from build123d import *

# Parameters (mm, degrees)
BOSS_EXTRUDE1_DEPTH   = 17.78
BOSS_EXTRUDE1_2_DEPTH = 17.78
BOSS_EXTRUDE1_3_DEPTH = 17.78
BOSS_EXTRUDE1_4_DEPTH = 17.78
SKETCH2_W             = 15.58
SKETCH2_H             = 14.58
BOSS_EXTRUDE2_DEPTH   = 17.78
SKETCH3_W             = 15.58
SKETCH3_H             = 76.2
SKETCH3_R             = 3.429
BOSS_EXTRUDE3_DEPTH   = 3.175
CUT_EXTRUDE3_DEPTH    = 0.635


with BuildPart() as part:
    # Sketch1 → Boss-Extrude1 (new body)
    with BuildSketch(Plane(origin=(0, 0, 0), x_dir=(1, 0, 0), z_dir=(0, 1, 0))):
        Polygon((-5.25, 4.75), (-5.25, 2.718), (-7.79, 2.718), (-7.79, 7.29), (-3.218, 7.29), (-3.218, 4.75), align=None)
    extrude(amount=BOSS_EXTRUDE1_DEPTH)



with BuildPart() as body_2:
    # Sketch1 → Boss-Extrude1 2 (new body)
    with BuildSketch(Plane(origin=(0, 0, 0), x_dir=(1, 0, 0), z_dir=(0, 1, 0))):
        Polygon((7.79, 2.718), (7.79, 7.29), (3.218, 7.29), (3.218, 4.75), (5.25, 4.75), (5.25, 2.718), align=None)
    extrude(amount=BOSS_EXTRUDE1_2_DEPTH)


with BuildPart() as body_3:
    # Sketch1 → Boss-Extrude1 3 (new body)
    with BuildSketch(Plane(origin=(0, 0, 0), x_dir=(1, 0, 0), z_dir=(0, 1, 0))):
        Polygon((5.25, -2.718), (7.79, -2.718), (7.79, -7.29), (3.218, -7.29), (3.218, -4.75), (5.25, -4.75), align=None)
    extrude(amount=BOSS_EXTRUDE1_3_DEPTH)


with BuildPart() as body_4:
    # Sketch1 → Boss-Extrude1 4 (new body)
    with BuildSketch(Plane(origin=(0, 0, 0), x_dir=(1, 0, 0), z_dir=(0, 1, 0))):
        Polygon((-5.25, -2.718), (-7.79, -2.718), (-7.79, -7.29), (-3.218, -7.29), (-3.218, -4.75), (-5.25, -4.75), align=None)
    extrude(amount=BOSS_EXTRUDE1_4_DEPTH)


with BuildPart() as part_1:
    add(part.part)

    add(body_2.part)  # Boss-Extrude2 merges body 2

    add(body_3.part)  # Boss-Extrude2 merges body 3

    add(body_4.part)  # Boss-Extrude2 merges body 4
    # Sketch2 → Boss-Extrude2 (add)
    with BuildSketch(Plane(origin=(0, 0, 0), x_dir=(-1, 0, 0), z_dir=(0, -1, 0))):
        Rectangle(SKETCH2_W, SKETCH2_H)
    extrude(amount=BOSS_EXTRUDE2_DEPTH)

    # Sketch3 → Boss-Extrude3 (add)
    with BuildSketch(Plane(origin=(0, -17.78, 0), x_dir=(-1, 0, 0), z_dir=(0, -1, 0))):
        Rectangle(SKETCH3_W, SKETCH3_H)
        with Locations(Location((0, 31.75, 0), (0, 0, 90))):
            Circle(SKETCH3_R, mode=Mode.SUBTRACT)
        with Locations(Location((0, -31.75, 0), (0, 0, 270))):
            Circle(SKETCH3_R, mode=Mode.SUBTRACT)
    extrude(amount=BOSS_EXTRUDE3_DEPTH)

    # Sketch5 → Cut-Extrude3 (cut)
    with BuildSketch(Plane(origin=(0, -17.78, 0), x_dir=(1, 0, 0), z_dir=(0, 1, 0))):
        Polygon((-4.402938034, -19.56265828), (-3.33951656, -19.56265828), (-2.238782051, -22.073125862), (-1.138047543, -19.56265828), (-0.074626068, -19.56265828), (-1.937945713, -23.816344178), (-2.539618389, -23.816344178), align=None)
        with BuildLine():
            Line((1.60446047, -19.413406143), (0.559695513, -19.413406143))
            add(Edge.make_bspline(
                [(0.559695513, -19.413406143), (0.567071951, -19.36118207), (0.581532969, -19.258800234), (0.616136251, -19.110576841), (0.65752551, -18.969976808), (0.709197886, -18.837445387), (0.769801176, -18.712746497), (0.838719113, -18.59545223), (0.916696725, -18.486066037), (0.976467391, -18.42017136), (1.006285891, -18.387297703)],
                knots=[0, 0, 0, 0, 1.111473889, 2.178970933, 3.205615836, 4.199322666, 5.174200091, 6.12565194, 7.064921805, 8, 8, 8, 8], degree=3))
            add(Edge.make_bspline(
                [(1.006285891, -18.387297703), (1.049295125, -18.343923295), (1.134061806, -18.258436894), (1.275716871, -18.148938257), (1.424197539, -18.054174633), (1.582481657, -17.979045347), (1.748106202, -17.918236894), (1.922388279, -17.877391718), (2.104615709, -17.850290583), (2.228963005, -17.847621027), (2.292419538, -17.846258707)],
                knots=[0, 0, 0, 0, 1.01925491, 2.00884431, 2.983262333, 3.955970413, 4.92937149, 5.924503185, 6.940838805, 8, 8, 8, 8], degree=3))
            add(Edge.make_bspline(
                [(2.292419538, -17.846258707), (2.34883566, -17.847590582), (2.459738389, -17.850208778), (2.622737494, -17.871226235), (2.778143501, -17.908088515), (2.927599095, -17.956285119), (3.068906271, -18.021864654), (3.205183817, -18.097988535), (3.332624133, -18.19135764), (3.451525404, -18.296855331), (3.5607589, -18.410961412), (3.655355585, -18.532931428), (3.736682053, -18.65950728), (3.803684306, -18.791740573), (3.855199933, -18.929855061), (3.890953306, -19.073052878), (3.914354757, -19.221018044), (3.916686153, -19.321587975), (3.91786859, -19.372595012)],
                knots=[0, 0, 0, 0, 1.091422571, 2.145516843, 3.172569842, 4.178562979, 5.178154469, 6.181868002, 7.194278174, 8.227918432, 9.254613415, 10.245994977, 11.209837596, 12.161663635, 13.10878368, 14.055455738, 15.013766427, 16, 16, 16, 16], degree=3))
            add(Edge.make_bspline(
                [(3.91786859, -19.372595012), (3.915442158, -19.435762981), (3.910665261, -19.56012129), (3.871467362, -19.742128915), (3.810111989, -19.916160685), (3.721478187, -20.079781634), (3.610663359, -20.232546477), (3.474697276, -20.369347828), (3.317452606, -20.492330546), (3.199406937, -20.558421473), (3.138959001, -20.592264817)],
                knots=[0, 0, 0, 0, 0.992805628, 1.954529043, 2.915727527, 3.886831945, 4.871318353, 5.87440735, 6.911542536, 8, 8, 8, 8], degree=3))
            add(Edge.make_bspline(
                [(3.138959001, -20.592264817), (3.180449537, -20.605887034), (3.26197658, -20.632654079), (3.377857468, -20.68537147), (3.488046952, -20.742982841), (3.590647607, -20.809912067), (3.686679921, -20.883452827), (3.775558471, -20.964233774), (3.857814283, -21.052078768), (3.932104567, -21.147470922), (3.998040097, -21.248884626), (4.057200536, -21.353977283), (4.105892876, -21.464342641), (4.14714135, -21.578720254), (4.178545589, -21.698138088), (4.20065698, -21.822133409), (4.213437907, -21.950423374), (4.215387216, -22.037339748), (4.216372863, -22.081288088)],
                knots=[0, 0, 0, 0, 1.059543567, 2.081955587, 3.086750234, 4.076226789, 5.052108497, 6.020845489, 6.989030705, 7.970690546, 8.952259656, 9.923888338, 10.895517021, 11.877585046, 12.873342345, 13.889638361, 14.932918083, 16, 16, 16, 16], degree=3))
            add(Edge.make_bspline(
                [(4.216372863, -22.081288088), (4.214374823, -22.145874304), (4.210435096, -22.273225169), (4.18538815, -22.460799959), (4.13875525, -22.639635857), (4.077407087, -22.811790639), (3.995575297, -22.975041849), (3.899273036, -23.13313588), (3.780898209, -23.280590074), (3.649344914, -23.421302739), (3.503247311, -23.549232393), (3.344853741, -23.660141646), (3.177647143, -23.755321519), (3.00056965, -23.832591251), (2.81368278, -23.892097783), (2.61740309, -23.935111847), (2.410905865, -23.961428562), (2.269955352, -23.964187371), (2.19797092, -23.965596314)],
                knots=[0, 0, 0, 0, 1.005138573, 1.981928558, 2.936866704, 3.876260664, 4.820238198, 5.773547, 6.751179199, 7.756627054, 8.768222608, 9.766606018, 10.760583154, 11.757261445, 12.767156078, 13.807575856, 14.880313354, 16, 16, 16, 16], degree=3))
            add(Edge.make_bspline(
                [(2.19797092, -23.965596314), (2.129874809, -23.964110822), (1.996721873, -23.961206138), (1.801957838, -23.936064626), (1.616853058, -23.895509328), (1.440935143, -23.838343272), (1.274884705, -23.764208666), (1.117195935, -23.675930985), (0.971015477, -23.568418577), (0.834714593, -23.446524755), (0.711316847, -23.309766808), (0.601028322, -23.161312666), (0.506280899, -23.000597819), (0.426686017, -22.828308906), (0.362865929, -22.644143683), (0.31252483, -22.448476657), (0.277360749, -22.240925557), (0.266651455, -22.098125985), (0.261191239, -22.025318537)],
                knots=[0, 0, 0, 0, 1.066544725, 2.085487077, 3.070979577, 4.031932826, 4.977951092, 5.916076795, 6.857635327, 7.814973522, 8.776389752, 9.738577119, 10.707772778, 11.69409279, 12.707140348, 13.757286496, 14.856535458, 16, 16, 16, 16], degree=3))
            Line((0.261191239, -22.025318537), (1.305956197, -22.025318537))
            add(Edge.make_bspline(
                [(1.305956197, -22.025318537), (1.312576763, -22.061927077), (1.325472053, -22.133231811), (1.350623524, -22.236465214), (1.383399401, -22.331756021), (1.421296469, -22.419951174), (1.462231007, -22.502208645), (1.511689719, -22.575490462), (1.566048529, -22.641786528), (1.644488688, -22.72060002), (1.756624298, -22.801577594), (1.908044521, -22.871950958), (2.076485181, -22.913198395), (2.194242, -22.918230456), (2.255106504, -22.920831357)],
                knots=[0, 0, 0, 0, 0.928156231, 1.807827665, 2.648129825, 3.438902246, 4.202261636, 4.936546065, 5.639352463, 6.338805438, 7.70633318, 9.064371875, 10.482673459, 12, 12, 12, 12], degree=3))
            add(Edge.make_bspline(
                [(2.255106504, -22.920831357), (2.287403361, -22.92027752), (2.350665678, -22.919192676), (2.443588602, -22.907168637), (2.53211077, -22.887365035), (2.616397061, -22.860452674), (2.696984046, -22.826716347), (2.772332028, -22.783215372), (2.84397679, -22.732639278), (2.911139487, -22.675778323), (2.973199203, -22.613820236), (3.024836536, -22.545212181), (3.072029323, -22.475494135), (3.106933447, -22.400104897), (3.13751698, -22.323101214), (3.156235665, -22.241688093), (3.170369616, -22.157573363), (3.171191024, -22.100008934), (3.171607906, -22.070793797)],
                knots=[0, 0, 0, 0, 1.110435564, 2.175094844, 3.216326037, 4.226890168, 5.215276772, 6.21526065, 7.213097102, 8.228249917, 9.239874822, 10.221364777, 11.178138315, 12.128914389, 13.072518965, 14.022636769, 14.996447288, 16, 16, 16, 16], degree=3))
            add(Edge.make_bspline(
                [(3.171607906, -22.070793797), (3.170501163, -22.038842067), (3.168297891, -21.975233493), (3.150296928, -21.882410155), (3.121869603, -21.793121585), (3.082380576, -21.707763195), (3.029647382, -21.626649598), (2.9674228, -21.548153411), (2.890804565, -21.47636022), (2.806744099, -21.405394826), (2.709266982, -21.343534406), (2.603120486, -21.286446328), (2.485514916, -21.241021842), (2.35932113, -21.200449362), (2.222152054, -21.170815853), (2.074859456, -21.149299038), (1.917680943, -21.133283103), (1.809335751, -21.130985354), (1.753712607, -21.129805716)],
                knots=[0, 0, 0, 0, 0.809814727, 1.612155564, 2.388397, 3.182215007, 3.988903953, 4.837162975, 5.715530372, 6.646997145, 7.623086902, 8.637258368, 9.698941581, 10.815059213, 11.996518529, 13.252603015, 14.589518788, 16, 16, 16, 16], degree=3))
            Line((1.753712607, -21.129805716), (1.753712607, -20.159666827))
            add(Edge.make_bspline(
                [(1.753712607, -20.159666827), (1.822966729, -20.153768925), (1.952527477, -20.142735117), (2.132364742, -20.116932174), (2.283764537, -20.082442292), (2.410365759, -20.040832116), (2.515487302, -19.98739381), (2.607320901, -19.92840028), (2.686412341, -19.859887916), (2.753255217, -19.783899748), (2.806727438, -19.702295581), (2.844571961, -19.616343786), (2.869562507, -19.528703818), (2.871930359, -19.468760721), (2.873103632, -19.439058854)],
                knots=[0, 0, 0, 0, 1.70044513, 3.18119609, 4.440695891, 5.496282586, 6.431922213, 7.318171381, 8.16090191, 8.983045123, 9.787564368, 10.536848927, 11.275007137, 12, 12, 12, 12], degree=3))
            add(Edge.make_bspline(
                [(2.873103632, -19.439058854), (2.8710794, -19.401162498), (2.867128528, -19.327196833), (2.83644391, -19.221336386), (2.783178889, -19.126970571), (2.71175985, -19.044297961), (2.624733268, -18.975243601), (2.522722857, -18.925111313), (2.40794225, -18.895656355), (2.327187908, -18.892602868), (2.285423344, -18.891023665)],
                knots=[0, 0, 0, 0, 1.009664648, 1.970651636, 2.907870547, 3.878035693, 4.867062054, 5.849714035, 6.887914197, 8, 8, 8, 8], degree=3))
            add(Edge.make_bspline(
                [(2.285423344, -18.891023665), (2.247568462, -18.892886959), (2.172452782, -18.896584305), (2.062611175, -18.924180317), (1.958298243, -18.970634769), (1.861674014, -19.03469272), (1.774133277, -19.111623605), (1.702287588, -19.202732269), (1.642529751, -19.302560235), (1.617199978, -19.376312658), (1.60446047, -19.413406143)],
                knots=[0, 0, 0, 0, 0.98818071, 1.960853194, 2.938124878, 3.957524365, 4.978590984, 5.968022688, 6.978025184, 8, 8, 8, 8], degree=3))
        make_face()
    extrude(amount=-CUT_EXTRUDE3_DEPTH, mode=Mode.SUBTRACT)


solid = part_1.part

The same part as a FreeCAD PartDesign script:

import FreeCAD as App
import Part
import Sketcher
Q = App.Units.Quantity


def add_polygon(sketch, points):
    """Adds a closed chain of lines whose ends are joined by coincident constraints."""
    first, n = sketch.GeometryCount, len(points)
    for a, b in zip(points, points[1:] + points[:1]):
        sketch.addGeometry(Part.LineSegment(App.Vector(*a, 0), App.Vector(*b, 0)), False)
    for i in range(n):
        sketch.addConstraint(Sketcher.Constraint("Coincident", first + i, 2, first + (i + 1) % n, 1))

doc = App.newDocument("Part")
params = doc.addObject("Spreadsheet::Sheet", "Params")
for row, (alias, value) in enumerate([
    ("sketch1_width", "0.1 in"),
    ("sketch1_width2", "0.08 in"),
    ("pad1_length", "0.7 in"),
    ("sketch2_width", "0.1 in"),
    ("sketch2_width2", "0.18 in"),
    ("pad2_length", "0.7 in"),
    ("sketch3_width", "0.1 in"),
    ("sketch3_width2", "0.08 in"),
    ("pad3_length", "0.7 in"),
    ("sketch4_width", "0.1 in"),
    ("sketch4_width2", "0.18 in"),
    ("pad4_length", "0.7 in"),
    ("pad5_length", "0.7 in"),
    ("sketch6_diameter", "0.27 in"),
    ("sketch6_height", "3 in"),
    ("pad6_length", "0.125 in"),
    ("pocket1_length", "0.025 in"),
], start=1):
    params.set(f"A{row}", alias)
    params.set(f"B{row}", "=" + value)
    params.setAlias(f"B{row}", alias)

body = doc.addObject("PartDesign::Body", "Body")

sketch1 = body.newObject("Sketcher::SketchObject", "Sketch")
sketch1.AttachmentSupport = (doc.getObject("XZ_Plane"), [""])
sketch1.MapMode = "FlatFace"
add_polygon(sketch1, [(-5.2, -2.7), (-5.2, -4.8), (-3.2, -4.8), (-3.2, -7.3), (-7.8, -7.3), (-7.8, -2.7)])
sketch1.addConstraint(Sketcher.Constraint("Vertical", 0))
sketch1.addConstraint(Sketcher.Constraint("Horizontal", 1))
sketch1.addConstraint(Sketcher.Constraint("Vertical", 2))
sketch1.addConstraint(Sketcher.Constraint("Horizontal", 3))
sketch1.addConstraint(Sketcher.Constraint("Vertical", 4))
sketch1.addConstraint(Sketcher.Constraint("Horizontal", 5))
sketch1.addConstraint(Sketcher.Constraint("Equal", 1, 0))
sketch1.addConstraint(Sketcher.Constraint("Equal", 5, 2))
sketch1.addConstraint(Sketcher.Constraint("DistanceX", 5, 1, 5, 2, Q("0.1 in")))
sketch1.addConstraint(Sketcher.Constraint("DistanceX", 1, 1, 1, 2, Q("0.08 in")))
sketch1.addConstraint(Sketcher.Constraint("DistanceX", 0, 2, -1, 1, Q("5.25 mm")))
sketch1.addConstraint(Sketcher.Constraint("DistanceY", 0, 2, -1, 1, Q("4.75 mm")))
sketch1.setExpression("Constraints[14]", "Params.sketch1_width")
sketch1.setExpression("Constraints[15]", "Params.sketch1_width2")
pad1 = body.newObject("PartDesign::Pad", "Pad")
pad1.Profile = sketch1
pad1.setExpression("Length", "Params.pad1_length")
pad1.Reversed = True
body2 = doc.addObject("PartDesign::Body", "Body001")

sketch2 = body2.newObject("Sketcher::SketchObject", "Sketch001")
sketch2.AttachmentSupport = (doc.getObject("XZ_Plane001"), [""])
sketch2.MapMode = "FlatFace"
add_polygon(sketch2, [(7.8, -2.7), (7.8, -7.3), (3.2, -7.3), (3.2, -4.8), (5.2, -4.8), (5.2, -2.7)])
sketch2.addConstraint(Sketcher.Constraint("Vertical", 0))
sketch2.addConstraint(Sketcher.Constraint("Horizontal", 1))
sketch2.addConstraint(Sketcher.Constraint("Vertical", 2))
sketch2.addConstraint(Sketcher.Constraint("Horizontal", 3))
sketch2.addConstraint(Sketcher.Constraint("Vertical", 4))
sketch2.addConstraint(Sketcher.Constraint("Horizontal", 5))
sketch2.addConstraint(Sketcher.Constraint("Equal", 1, 0))
sketch2.addConstraint(Sketcher.Constraint("Equal", 5, 2))
sketch2.addConstraint(Sketcher.Constraint("DistanceX", 5, 1, 5, 2, Q("0.1 in")))
sketch2.addConstraint(Sketcher.Constraint("DistanceX", 1, 2, 1, 1, Q("0.18 in")))
sketch2.addConstraint(Sketcher.Constraint("DistanceX", -1, 1, 0, 2, Q("7.79 mm")))
sketch2.addConstraint(Sketcher.Constraint("DistanceY", 0, 2, -1, 1, Q("7.29 mm")))
sketch2.setExpression("Constraints[14]", "Params.sketch2_width")
sketch2.setExpression("Constraints[15]", "Params.sketch2_width2")
pad2 = body2.newObject("PartDesign::Pad", "Pad001")
pad2.Profile = sketch2
pad2.setExpression("Length", "Params.pad2_length")
pad2.Reversed = True
body3 = doc.addObject("PartDesign::Body", "Body002")

sketch3 = body3.newObject("Sketcher::SketchObject", "Sketch002")
sketch3.AttachmentSupport = (doc.getObject("XZ_Plane002"), [""])
sketch3.MapMode = "FlatFace"
add_polygon(sketch3, [(7.8, 2.7), (5.2, 2.7), (5.2, 4.8), (3.2, 4.8), (3.2, 7.3), (7.8, 7.3)])
sketch3.addConstraint(Sketcher.Constraint("Horizontal", 0))
sketch3.addConstraint(Sketcher.Constraint("Vertical", 1))
sketch3.addConstraint(Sketcher.Constraint("Horizontal", 2))
sketch3.addConstraint(Sketcher.Constraint("Vertical", 3))
sketch3.addConstraint(Sketcher.Constraint("Horizontal", 4))
sketch3.addConstraint(Sketcher.Constraint("Vertical", 5))
sketch3.addConstraint(Sketcher.Constraint("Equal", 2, 1))
sketch3.addConstraint(Sketcher.Constraint("Equal", 0, 3))
sketch3.addConstraint(Sketcher.Constraint("DistanceX", 0, 2, 0, 1, Q("0.1 in")))
sketch3.addConstraint(Sketcher.Constraint("DistanceX", 2, 2, 2, 1, Q("0.08 in")))
sketch3.addConstraint(Sketcher.Constraint("DistanceX", -1, 1, 0, 2, Q("5.25 mm")))
sketch3.addConstraint(Sketcher.Constraint("DistanceY", -1, 1, 0, 2, Q("2.718 mm")))
sketch3.setExpression("Constraints[14]", "Params.sketch3_width")
sketch3.setExpression("Constraints[15]", "Params.sketch3_width2")
pad3 = body3.newObject("PartDesign::Pad", "Pad002")
pad3.Profile = sketch3
pad3.setExpression("Length", "Params.pad3_length")
pad3.Reversed = True
body4 = doc.addObject("PartDesign::Body", "Body003")

sketch4 = body4.newObject("Sketcher::SketchObject", "Sketch003")
sketch4.AttachmentSupport = (doc.getObject("XZ_Plane003"), [""])
sketch4.MapMode = "FlatFace"
add_polygon(sketch4, [(-5.2, 2.7), (-7.8, 2.7), (-7.8, 7.3), (-3.2, 7.3), (-3.2, 4.8), (-5.2, 4.8)])
sketch4.addConstraint(Sketcher.Constraint("Horizontal", 0))
sketch4.addConstraint(Sketcher.Constraint("Vertical", 1))
sketch4.addConstraint(Sketcher.Constraint("Horizontal", 2))
sketch4.addConstraint(Sketcher.Constraint("Vertical", 3))
sketch4.addConstraint(Sketcher.Constraint("Horizontal", 4))
sketch4.addConstraint(Sketcher.Constraint("Vertical", 5))
sketch4.addConstraint(Sketcher.Constraint("Equal", 2, 1))
sketch4.addConstraint(Sketcher.Constraint("Equal", 0, 3))
sketch4.addConstraint(Sketcher.Constraint("DistanceX", 0, 2, 0, 1, Q("0.1 in")))
sketch4.addConstraint(Sketcher.Constraint("DistanceX", 2, 1, 2, 2, Q("0.18 in")))
sketch4.addConstraint(Sketcher.Constraint("DistanceX", 0, 2, -1, 1, Q("7.79 mm")))
sketch4.addConstraint(Sketcher.Constraint("DistanceY", -1, 1, 0, 2, Q("2.718 mm")))
sketch4.setExpression("Constraints[14]", "Params.sketch4_width")
sketch4.setExpression("Constraints[15]", "Params.sketch4_width2")
pad4 = body4.newObject("PartDesign::Pad", "Pad003")
pad4.Profile = sketch4
pad4.setExpression("Length", "Params.pad4_length")
pad4.Reversed = True
body.AllowCompound = True
doc.recompute()

boolean = body.newObject("PartDesign::Boolean", "Boolean")
boolean.Type = "Fuse"
boolean.addObjects([body2])
doc.recompute()

boolean2 = body.newObject("PartDesign::Boolean", "Boolean001")
boolean2.Type = "Fuse"
boolean2.addObjects([body3])
doc.recompute()

boolean3 = body.newObject("PartDesign::Boolean", "Boolean002")
boolean3.Type = "Fuse"
boolean3.addObjects([body4])

sketch5 = body.newObject("Sketcher::SketchObject", "Sketch004")
sketch5.AttachmentSupport = (doc.getObject("XZ_Plane"), [""])
sketch5.MapMode = "FlatFace"
add_polygon(sketch5, [(8, -7), (8, 7), (-8, 7), (-8, -7)])
sketch5.addConstraint(Sketcher.Constraint("Vertical", 0))
sketch5.addConstraint(Sketcher.Constraint("Horizontal", 1))
sketch5.addConstraint(Sketcher.Constraint("Vertical", 2))
sketch5.addConstraint(Sketcher.Constraint("Horizontal", 3))
sketch5.addConstraint(Sketcher.Constraint("Symmetric", 0, 2, 2, 2, -1, 1))
sketch5.addConstraint(Sketcher.Constraint("DistanceX", 1, 2, 1, 1, Q("15.58 mm")))
sketch5.addConstraint(Sketcher.Constraint("DistanceY", 0, 1, 0, 2, Q("14.58 mm")))
pad5 = body.newObject("PartDesign::Pad", "Pad004")
pad5.Profile = sketch5
pad5.setExpression("Length", "Params.pad5_length")

sketch6 = body.newObject("Sketcher::SketchObject", "Sketch005")
sketch6.AttachmentSupport = (doc.getObject("XZ_Plane"), [""])
sketch6.MapMode = "FlatFace"
sketch6.AttachmentOffset = App.Placement(App.Vector(0, 0, 0.7 * 25.4), App.Rotation())
add_polygon(sketch6, [(7.8, -38.1), (7.8, 38.1), (-7.8, 38.1), (-7.8, -38.1)])
sketch6.addGeometry(Part.Circle(App.Vector(0, 31.8, 0), App.Vector(0, 0, 1), 3.4), False)
sketch6.addGeometry(Part.Circle(App.Vector(0, -31.8, 0), App.Vector(0, 0, 1), 3.4), False)
sketch6.addConstraint(Sketcher.Constraint("Vertical", 0))
sketch6.addConstraint(Sketcher.Constraint("Horizontal", 1))
sketch6.addConstraint(Sketcher.Constraint("Vertical", 2))
sketch6.addConstraint(Sketcher.Constraint("Horizontal", 3))
sketch6.addConstraint(Sketcher.Constraint("Equal", 4, 5))
sketch6.addConstraint(Sketcher.Constraint("Symmetric", 4, 3, 5, 3, -1, 1))
sketch6.addConstraint(Sketcher.Constraint("Symmetric", 0, 2, 2, 2, -1, 1))
sketch6.addConstraint(Sketcher.Constraint("PointOnObject", 4, 3, -2))
sketch6.addConstraint(Sketcher.Constraint("Diameter", 4, Q("0.27 in")))
sketch6.addConstraint(Sketcher.Constraint("DistanceY", 0, 1, 0, 2, Q("3 in")))
sketch6.addConstraint(Sketcher.Constraint("DistanceY", 5, 3, 4, 3, Q("2.5 in")))
sketch6.addConstraint(Sketcher.Constraint("DistanceX", 1, 2, 1, 1, Q("15.58 mm")))
sketch6.setExpression("Constraints[12]", "Params.sketch6_diameter")
sketch6.setExpression("Constraints[13]", "Params.sketch6_height")
pad6 = body.newObject("PartDesign::Pad", "Pad005")
pad6.Profile = sketch6
pad6.setExpression("Length", "Params.pad6_length")

sketch7 = body.newObject("Sketcher::SketchObject", "Sketch006")
sketch7.AttachmentSupport = (doc.getObject("XZ_Plane"), [""])
sketch7.MapMode = "FlatFace"
sketch7.AttachmentOffset = App.Placement(App.Vector(0, 0, 0.7 * 25.4), App.Rotation())
add_polygon(sketch7, [(-3.339517, 19.562658), (-4.402938, 19.562658), (-2.539618, 23.816344), (-1.937946, 23.816344), (-0.074626, 19.562658), (-1.138048, 19.562658), (-2.238782, 22.073126)])
sketch7.addGeometry(Part.LineSegment(App.Vector(0.559696, 19.413406, 0), App.Vector(1.60446, 19.413406, 0)), False)
sketch7.addGeometry(Part.BSplineCurve([App.Vector(2.285423, 18.891024, 0), App.Vector(2.247568, 18.892887, 0), App.Vector(2.172453, 18.896584, 0), App.Vector(2.062611, 18.92418, 0), App.Vector(1.958298, 18.970635, 0), App.Vector(1.861674, 19.034693, 0), App.Vector(1.774133, 19.111624, 0), App.Vector(1.702288, 19.202732, 0), App.Vector(1.64253, 19.30256, 0), App.Vector(1.6172, 19.376313, 0), App.Vector(1.60446, 19.413406, 0)], [4, 1, 1, 1, 1, 1, 1, 1, 4], [0, 0.98818071, 1.960853194, 2.938124878, 3.957524365, 4.978590984, 5.968022688, 6.978025184, 8], False, 3, [1, 1, 1, 1, 1, 1, 1, 1, 1, 1, 1], False), False)
sketch7.addGeometry(Part.BSplineCurve([App.Vector(2.873104, 19.439059, 0), App.Vector(2.871079, 19.401162, 0), App.Vector(2.867129, 19.327197, 0), App.Vector(2.836444, 19.221336, 0), App.Vector(2.783179, 19.126971, 0), App.Vector(2.71176, 19.044298, 0), App.Vector(2.624733, 18.975244, 0), App.Vector(2.522723, 18.925111, 0), App.Vector(2.407942, 18.895656, 0), App.Vector(2.327188, 18.892603, 0), App.Vector(2.285423, 18.891024, 0)], [4, 1, 1, 1, 1, 1, 1, 1, 4], [0, 1.009664648, 1.970651636, 2.907870547, 3.878035693, 4.867062054, 5.849714035, 6.887914197, 8], False, 3, [1, 1, 1, 1, 1, 1, 1, 1, 1, 1, 1], False), False)
sketch7.addGeometry(Part.BSplineCurve([App.Vector(1.753713, 20.159667, 0), App.Vector(1.822967, 20.153769, 0), App.Vector(1.952527, 20.142735, 0), App.Vector(2.132365, 20.116932, 0), App.Vector(2.283765, 20.082442, 0), App.Vector(2.410366, 20.040832, 0), App.Vector(2.515487, 19.987394, 0), App.Vector(2.607321, 19.9284, 0), App.Vector(2.686412, 19.859888, 0), App.Vector(2.753255, 19.7839, 0), App.Vector(2.806727, 19.702296, 0), App.Vector(2.844572, 19.616344, 0), App.Vector(2.869563, 19.528704, 0), App.Vector(2.87193, 19.468761, 0), App.Vector(2.873104, 19.439059, 0)], [4, 1, 1, 1, 1, 1, 1, 1, 1, 1, 1, 1, 4], [0, 1.70044513, 3.18119609, 4.440695891, 5.496282586, 6.431922213, 7.318171381, 8.16090191, 8.983045123, 9.787564368, 10.536848927, 11.275007137, 12], False, 3, [1, 1, 1, 1, 1, 1, 1, 1, 1, 1, 1, 1, 1, 1, 1], False), False)
sketch7.addGeometry(Part.LineSegment(App.Vector(1.753713, 20.159667, 0), App.Vector(1.753713, 21.129806, 0)), False)
sketch7.addGeometry(Part.BSplineCurve([App.Vector(3.171608, 22.070794, 0), App.Vector(3.170501, 22.038842, 0), App.Vector(3.168298, 21.975233, 0), App.Vector(3.150297, 21.88241, 0), App.Vector(3.12187, 21.793122, 0), App.Vector(3.082381, 21.707763, 0), App.Vector(3.029647, 21.62665, 0), App.Vector(2.967423, 21.548153, 0), App.Vector(2.890805, 21.47636, 0), App.Vector(2.806744, 21.405395, 0), App.Vector(2.709267, 21.343534, 0), App.Vector(2.60312, 21.286446, 0), App.Vector(2.485515, 21.241022, 0), App.Vector(2.359321, 21.200449, 0), App.Vector(2.222152, 21.170816, 0), App.Vector(2.074859, 21.149299, 0), App.Vector(1.917681, 21.133283, 0), App.Vector(1.809336, 21.130985, 0), App.Vector(1.753713, 21.129806, 0)], [4, 1, 1, 1, 1, 1, 1, 1, 1, 1, 1, 1, 1, 1, 1, 1, 4], [0, 0.809814727, 1.612155564, 2.388397, 3.182215007, 3.988903953, 4.837162975, 5.715530372, 6.646997145, 7.623086902, 8.637258368, 9.698941581, 10.815059213, 11.996518529, 13.252603015, 14.589518788, 16], False, 3, [1, 1, 1, 1, 1, 1, 1, 1, 1, 1, 1, 1, 1, 1, 1, 1, 1, 1, 1], False), False)
sketch7.addGeometry(Part.BSplineCurve([App.Vector(2.255107, 22.920831, 0), App.Vector(2.287403, 22.920278, 0), App.Vector(2.350666, 22.919193, 0), App.Vector(2.443589, 22.907169, 0), App.Vector(2.532111, 22.887365, 0), App.Vector(2.616397, 22.860453, 0), App.Vector(2.696984, 22.826716, 0), App.Vector(2.772332, 22.783215, 0), App.Vector(2.843977, 22.732639, 0), App.Vector(2.911139, 22.675778, 0), App.Vector(2.973199, 22.61382, 0), App.Vector(3.024837, 22.545212, 0), App.Vector(3.072029, 22.475494, 0), App.Vector(3.106933, 22.400105, 0), App.Vector(3.137517, 22.323101, 0), App.Vector(3.156236, 22.241688, 0), App.Vector(3.17037, 22.157573, 0), App.Vector(3.171191, 22.100009, 0), App.Vector(3.171608, 22.070794, 0)], [4, 1, 1, 1, 1, 1, 1, 1, 1, 1, 1, 1, 1, 1, 1, 1, 4], [0, 1.110435564, 2.175094844, 3.216326037, 4.226890168, 5.215276772, 6.21526065, 7.213097102, 8.228249917, 9.239874822, 10.221364777, 11.178138315, 12.128914389, 13.072518965, 14.022636769, 14.996447288, 16], False, 3, [1, 1, 1, 1, 1, 1, 1, 1, 1, 1, 1, 1, 1, 1, 1, 1, 1, 1, 1], False), False)
sketch7.addGeometry(Part.BSplineCurve([App.Vector(1.305956, 22.025319, 0), App.Vector(1.312577, 22.061927, 0), App.Vector(1.325472, 22.133232, 0), App.Vector(1.350624, 22.236465, 0), App.Vector(1.383399, 22.331756, 0), App.Vector(1.421296, 22.419951, 0), App.Vector(1.462231, 22.502209, 0), App.Vector(1.51169, 22.57549, 0), App.Vector(1.566049, 22.641787, 0), App.Vector(1.644489, 22.7206, 0), App.Vector(1.756624, 22.801578, 0), App.Vector(1.908045, 22.871951, 0), App.Vector(2.076485, 22.913198, 0), App.Vector(2.194242, 22.91823, 0), App.Vector(2.255107, 22.920831, 0)], [4, 1, 1, 1, 1, 1, 1, 1, 1, 1, 1, 1, 4], [0, 0.928156231, 1.807827665, 2.648129825, 3.438902246, 4.202261636, 4.936546065, 5.639352463, 6.338805438, 7.70633318, 9.064371875, 10.482673459, 12], False, 3, [1, 1, 1, 1, 1, 1, 1, 1, 1, 1, 1, 1, 1, 1, 1], False), False)
sketch7.addGeometry(Part.LineSegment(App.Vector(1.305956, 22.025319, 0), App.Vector(0.261191, 22.025319, 0)), False)
sketch7.addGeometry(Part.BSplineCurve([App.Vector(2.197971, 23.965596, 0), App.Vector(2.129875, 23.964111, 0), App.Vector(1.996722, 23.961206, 0), App.Vector(1.801958, 23.936065, 0), App.Vector(1.616853, 23.895509, 0), App.Vector(1.440935, 23.838343, 0), App.Vector(1.274885, 23.764209, 0), App.Vector(1.117196, 23.675931, 0), App.Vector(0.971015, 23.568419, 0), App.Vector(0.834715, 23.446525, 0), App.Vector(0.711317, 23.309767, 0), App.Vector(0.601028, 23.161313, 0), App.Vector(0.506281, 23.000598, 0), App.Vector(0.426686, 22.828309, 0), App.Vector(0.362866, 22.644144, 0), App.Vector(0.312525, 22.448477, 0), App.Vector(0.277361, 22.240926, 0), App.Vector(0.266651, 22.098126, 0), App.Vector(0.261191, 22.025319, 0)], [4, 1, 1, 1, 1, 1, 1, 1, 1, 1, 1, 1, 1, 1, 1, 1, 4], [0, 1.066544725, 2.085487077, 3.070979577, 4.031932826, 4.977951092, 5.916076795, 6.857635327, 7.814973522, 8.776389752, 9.738577119, 10.707772778, 11.69409279, 12.707140348, 13.757286496, 14.856535458, 16], False, 3, [1, 1, 1, 1, 1, 1, 1, 1, 1, 1, 1, 1, 1, 1, 1, 1, 1, 1, 1], False), False)
sketch7.addGeometry(Part.BSplineCurve([App.Vector(4.216373, 22.081288, 0), App.Vector(4.214375, 22.145874, 0), App.Vector(4.210435, 22.273225, 0), App.Vector(4.185388, 22.4608, 0), App.Vector(4.138755, 22.639636, 0), App.Vector(4.077407, 22.811791, 0), App.Vector(3.995575, 22.975042, 0), App.Vector(3.899273, 23.133136, 0), App.Vector(3.780898, 23.28059, 0), App.Vector(3.649345, 23.421303, 0), App.Vector(3.503247, 23.549232, 0), App.Vector(3.344854, 23.660142, 0), App.Vector(3.177647, 23.755322, 0), App.Vector(3.00057, 23.832591, 0), App.Vector(2.813683, 23.892098, 0), App.Vector(2.617403, 23.935112, 0), App.Vector(2.410906, 23.961429, 0), App.Vector(2.269955, 23.964187, 0), App.Vector(2.197971, 23.965596, 0)], [4, 1, 1, 1, 1, 1, 1, 1, 1, 1, 1, 1, 1, 1, 1, 1, 4], [0, 1.005138573, 1.981928558, 2.936866704, 3.876260664, 4.820238198, 5.773547, 6.751179199, 7.756627054, 8.768222608, 9.766606018, 10.760583154, 11.757261445, 12.767156078, 13.807575856, 14.880313354, 16], False, 3, [1, 1, 1, 1, 1, 1, 1, 1, 1, 1, 1, 1, 1, 1, 1, 1, 1, 1, 1], False), False)
sketch7.addGeometry(Part.BSplineCurve([App.Vector(3.138959, 20.592265, 0), App.Vector(3.18045, 20.605887, 0), App.Vector(3.261977, 20.632654, 0), App.Vector(3.377857, 20.685371, 0), App.Vector(3.488047, 20.742983, 0), App.Vector(3.590648, 20.809912, 0), App.Vector(3.68668, 20.883453, 0), App.Vector(3.775558, 20.964234, 0), App.Vector(3.857814, 21.052079, 0), App.Vector(3.932105, 21.147471, 0), App.Vector(3.99804, 21.248885, 0), App.Vector(4.057201, 21.353977, 0), App.Vector(4.105893, 21.464343, 0), App.Vector(4.147141, 21.57872, 0), App.Vector(4.178546, 21.698138, 0), App.Vector(4.200657, 21.822133, 0), App.Vector(4.213438, 21.950423, 0), App.Vector(4.215387, 22.03734, 0), App.Vector(4.216373, 22.081288, 0)], [4, 1, 1, 1, 1, 1, 1, 1, 1, 1, 1, 1, 1, 1, 1, 1, 4], [0, 1.059543567, 2.081955587, 3.086750234, 4.076226789, 5.052108497, 6.020845489, 6.989030705, 7.970690546, 8.952259656, 9.923888338, 10.895517021, 11.877585046, 12.873342345, 13.889638361, 14.932918083, 16], False, 3, [1, 1, 1, 1, 1, 1, 1, 1, 1, 1, 1, 1, 1, 1, 1, 1, 1, 1, 1], False), False)
sketch7.addGeometry(Part.BSplineCurve([App.Vector(3.917869, 19.372595, 0), App.Vector(3.915442, 19.435763, 0), App.Vector(3.910665, 19.560121, 0), App.Vector(3.871467, 19.742129, 0), App.Vector(3.810112, 19.916161, 0), App.Vector(3.721478, 20.079782, 0), App.Vector(3.610663, 20.232546, 0), App.Vector(3.474697, 20.369348, 0), App.Vector(3.317453, 20.492331, 0), App.Vector(3.199407, 20.558421, 0), App.Vector(3.138959, 20.592265, 0)], [4, 1, 1, 1, 1, 1, 1, 1, 4], [0, 0.992805628, 1.954529043, 2.915727527, 3.886831945, 4.871318353, 5.87440735, 6.911542536, 8], False, 3, [1, 1, 1, 1, 1, 1, 1, 1, 1, 1, 1], False), False)
sketch7.addGeometry(Part.BSplineCurve([App.Vector(2.29242, 17.846259, 0), App.Vector(2.348836, 17.847591, 0), App.Vector(2.459738, 17.850209, 0), App.Vector(2.622737, 17.871226, 0), App.Vector(2.778144, 17.908089, 0), App.Vector(2.927599, 17.956285, 0), App.Vector(3.068906, 18.021865, 0), App.Vector(3.205184, 18.097989, 0), App.Vector(3.332624, 18.191358, 0), App.Vector(3.451525, 18.296855, 0), App.Vector(3.560759, 18.410961, 0), App.Vector(3.655356, 18.532931, 0), App.Vector(3.736682, 18.659507, 0), App.Vector(3.803684, 18.791741, 0), App.Vector(3.8552, 18.929855, 0), App.Vector(3.890953, 19.073053, 0), App.Vector(3.914355, 19.221018, 0), App.Vector(3.916686, 19.321588, 0), App.Vector(3.917869, 19.372595, 0)], [4, 1, 1, 1, 1, 1, 1, 1, 1, 1, 1, 1, 1, 1, 1, 1, 4], [0, 1.091422571, 2.145516843, 3.172569842, 4.178562979, 5.178154469, 6.181868002, 7.194278174, 8.227918432, 9.254613415, 10.245994977, 11.209837596, 12.161663635, 13.10878368, 14.055455738, 15.013766427, 16], False, 3, [1, 1, 1, 1, 1, 1, 1, 1, 1, 1, 1, 1, 1, 1, 1, 1, 1, 1, 1], False), False)
sketch7.addGeometry(Part.BSplineCurve([App.Vector(1.006286, 18.387298, 0), App.Vector(1.049295, 18.343923, 0), App.Vector(1.134062, 18.258437, 0), App.Vector(1.275717, 18.148938, 0), App.Vector(1.424198, 18.054175, 0), App.Vector(1.582482, 17.979045, 0), App.Vector(1.748106, 17.918237, 0), App.Vector(1.922388, 17.877392, 0), App.Vector(2.104616, 17.850291, 0), App.Vector(2.228963, 17.847621, 0), App.Vector(2.29242, 17.846259, 0)], [4, 1, 1, 1, 1, 1, 1, 1, 4], [0, 1.01925491, 2.00884431, 2.983262333, 3.955970413, 4.92937149, 5.924503185, 6.940838805, 8], False, 3, [1, 1, 1, 1, 1, 1, 1, 1, 1, 1, 1], False), False)
sketch7.addGeometry(Part.BSplineCurve([App.Vector(0.559696, 19.413406, 0), App.Vector(0.567072, 19.361182, 0), App.Vector(0.581533, 19.2588, 0), App.Vector(0.616136, 19.110577, 0), App.Vector(0.657526, 18.969977, 0), App.Vector(0.709198, 18.837445, 0), App.Vector(0.769801, 18.712746, 0), App.Vector(0.838719, 18.595452, 0), App.Vector(0.916697, 18.486066, 0), App.Vector(0.976467, 18.420171, 0), App.Vector(1.006286, 18.387298, 0)], [4, 1, 1, 1, 1, 1, 1, 1, 4], [0, 1.111473889, 2.178970933, 3.205615836, 4.199322666, 5.174200091, 6.12565194, 7.064921805, 8], False, 3, [1, 1, 1, 1, 1, 1, 1, 1, 1, 1, 1], False), False)
sketch7.addConstraint(Sketcher.Constraint("Block", 8))
sketch7.addConstraint(Sketcher.Constraint("Block", 9))
sketch7.addConstraint(Sketcher.Constraint("Block", 10))
sketch7.addConstraint(Sketcher.Constraint("Block", 12))
sketch7.addConstraint(Sketcher.Constraint("Block", 13))
sketch7.addConstraint(Sketcher.Constraint("Block", 14))
sketch7.addConstraint(Sketcher.Constraint("Block", 16))
sketch7.addConstraint(Sketcher.Constraint("Block", 17))
sketch7.addConstraint(Sketcher.Constraint("Block", 18))
sketch7.addConstraint(Sketcher.Constraint("Block", 19))
sketch7.addConstraint(Sketcher.Constraint("Block", 20))
sketch7.addConstraint(Sketcher.Constraint("Block", 21))
sketch7.addConstraint(Sketcher.Constraint("Block", 22))
sketch7.addConstraint(Sketcher.Constraint("Coincident", 7, 2, 8, 2))
sketch7.addConstraint(Sketcher.Constraint("Coincident", 10, 1, 11, 1))
sketch7.addConstraint(Sketcher.Constraint("Coincident", 11, 2, 12, 2))
sketch7.addConstraint(Sketcher.Constraint("Coincident", 14, 1, 15, 1))
sketch7.addConstraint(Sketcher.Constraint("Coincident", 15, 2, 16, 2))
sketch7.addConstraint(Sketcher.Constraint("Coincident", 22, 1, 7, 1))
sketch7.addConstraint(Sketcher.Constraint("Horizontal", 0))
sketch7.addConstraint(Sketcher.Constraint("Horizontal", 2))
sketch7.addConstraint(Sketcher.Constraint("Horizontal", 4))
sketch7.addConstraint(Sketcher.Constraint("Horizontal", 0, 2, 3, 2))
sketch7.addConstraint(Sketcher.Constraint("Equal", 0, 4))
sketch7.addConstraint(Sketcher.Constraint("Equal", 1, 3))
sketch7.addConstraint(Sketcher.Constraint("Equal", 5, 6))
sketch7.addConstraint(Sketcher.Constraint("Distance", 1, Q("4.6439 mm")))
sketch7.addConstraint(Sketcher.Constraint("DistanceX", 0, 2, 0, 1, Q("1.063421 mm")))
sketch7.addConstraint(Sketcher.Constraint("DistanceX", 2, 2, 4, 2, Q("0.799898 mm")))
sketch7.addConstraint(Sketcher.Constraint("Distance", 5, Q("2.741179 mm")))
sketch7.addConstraint(Sketcher.Constraint("DistanceX", 2, 1, 2, 2, Q("0.601673 mm")))
sketch7.addConstraint(Sketcher.Constraint("DistanceX", 0, 2, -1, 1, Q("4.402938 mm")))
sketch7.addConstraint(Sketcher.Constraint("DistanceY", -1, 1, 0, 2, Q("19.562658 mm")))
pocket1 = body.newObject("PartDesign::Pocket", "Pocket")
pocket1.Profile = sketch7
pocket1.setExpression("Length", "Params.pocket1_length")
pocket1.Reversed = True

doc.recompute()
